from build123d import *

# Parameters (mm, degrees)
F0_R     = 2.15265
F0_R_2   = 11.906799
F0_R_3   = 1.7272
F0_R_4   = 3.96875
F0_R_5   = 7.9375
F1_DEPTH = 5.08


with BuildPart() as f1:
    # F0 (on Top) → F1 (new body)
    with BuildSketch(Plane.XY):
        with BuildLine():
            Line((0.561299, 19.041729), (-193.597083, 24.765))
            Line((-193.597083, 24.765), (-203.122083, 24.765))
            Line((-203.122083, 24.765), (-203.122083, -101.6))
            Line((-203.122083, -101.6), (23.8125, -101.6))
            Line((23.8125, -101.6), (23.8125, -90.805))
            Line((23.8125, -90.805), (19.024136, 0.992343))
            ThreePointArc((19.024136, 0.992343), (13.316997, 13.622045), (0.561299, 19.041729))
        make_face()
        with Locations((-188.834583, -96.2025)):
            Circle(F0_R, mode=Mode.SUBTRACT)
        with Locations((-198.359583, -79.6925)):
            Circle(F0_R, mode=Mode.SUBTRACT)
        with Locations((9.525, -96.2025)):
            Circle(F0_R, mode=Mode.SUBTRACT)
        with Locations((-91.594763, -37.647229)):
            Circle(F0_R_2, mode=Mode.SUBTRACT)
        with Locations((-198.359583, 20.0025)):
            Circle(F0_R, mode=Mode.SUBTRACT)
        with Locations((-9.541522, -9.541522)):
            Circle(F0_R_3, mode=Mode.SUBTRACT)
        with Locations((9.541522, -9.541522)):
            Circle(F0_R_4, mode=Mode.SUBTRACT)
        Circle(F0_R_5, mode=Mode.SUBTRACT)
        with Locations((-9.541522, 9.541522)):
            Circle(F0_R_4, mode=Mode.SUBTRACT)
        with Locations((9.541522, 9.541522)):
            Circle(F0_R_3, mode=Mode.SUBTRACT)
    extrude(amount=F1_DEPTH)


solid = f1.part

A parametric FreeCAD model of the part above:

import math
import FreeCAD as App
import Part
import Sketcher
from FreeCAD import Vector
Q = App.Units.Quantity

doc = App.newDocument("Part")
body = doc.addObject("PartDesign::Body", "Body")

sketch1 = body.newObject("Sketcher::SketchObject", "Sketch")
sketch1.AttachmentSupport = (doc.getObject("XY_Plane"), [""])
sketch1.MapMode = "FlatFace"
sketch1.addGeometry([
    Part.LineSegment(Vector(0.6, 19, 0), Vector(-193.6, 24.8, 0)),
    Part.LineSegment(Vector(-193.6, 24.8, 0), Vector(-203.1, 24.8, 0)),
    Part.LineSegment(Vector(-203.1, 24.8, 0), Vector(-203.1, -101.6, 0)),
    Part.LineSegment(Vector(-203.1, -101.6, 0), Vector(23.8, -101.6, 0)),
    Part.LineSegment(Vector(23.8, -101.6, 0), Vector(23.8, -90.8, 0)),
    Part.LineSegment(Vector(23.8, -90.8, 0), Vector(19, 1, 0)),
    Part.ArcOfCircle(Part.Circle(Vector(0, 0, 0), Vector(0, 0, 1), 19), math.radians(3), math.radians(88)),
    Part.Circle(Vector(-188.8, -96.2, 0), Vector(0, 0, 1), 2.2),
    Part.Circle(Vector(-198.4, -79.7, 0), Vector(0, 0, 1), 2.2),
    Part.Circle(Vector(9.5, -96.2, 0), Vector(0, 0, 1), 2.2),
    Part.Circle(Vector(-198.4, 20, 0), Vector(0, 0, 1), 2.2),
    Part.Circle(Vector(-91.6, -37.6, 0), Vector(0, 0, 1), 11.9),
    Part.Circle(Vector(-9.5, -9.5, 0), Vector(0, 0, 1), 1.7),
    Part.Circle(Vector(9.5, -9.5, 0), Vector(0, 0, 1), 4),
    Part.Circle(Vector(0, 0, 0), Vector(0, 0, 1), 7.9),
    Part.Circle(Vector(-9.5, 9.5, 0), Vector(0, 0, 1), 4),
    Part.Circle(Vector(9.5, 9.5, 0), Vector(0, 0, 1), 1.7),
], False)
sketch1.addConstraint([
    Sketcher.Constraint("Coincident", 0, 2, 1, 1),
    Sketcher.Constraint("Coincident", 1, 2, 2, 1),
    Sketcher.Constraint("Coincident", 2, 2, 3, 1),
    Sketcher.Constraint("Coincident", 3, 2, 4, 1),
    Sketcher.Constraint("Coincident", 4, 2, 5, 1),
    Sketcher.Constraint("Tangent", 5, 2, 6, 1),
    Sketcher.Constraint("Tangent", 6, 2, 0, 1),
    Sketcher.Constraint("Horizontal", 1),
    Sketcher.Constraint("Vertical", 2),
    Sketcher.Constraint("Horizontal", 3),
    Sketcher.Constraint("Vertical", 4),
    Sketcher.Constraint("Coincident", 6, 3, -1, 1),
    Sketcher.Constraint("Coincident", 14, 3, -1, 1),
    Sketcher.Constraint("Equal", 7, 8),
    Sketcher.Constraint("Equal", 8, 9),
    Sketcher.Constraint("Equal", 9, 10),
    Sketcher.Constraint("Equal", 13, 15),
    Sketcher.Constraint("Equal", 12, 16),
    Sketcher.Constraint("Symmetric", 13, 3, 15, 3, -1, 1),
    Sketcher.Constraint("Symmetric", 12, 3, 16, 3, -1, 1),
    Sketcher.Constraint("Symmetric", 12, 3, 13, 3, -2),
    Sketcher.Constraint("Horizontal", 7, 3, 9, 3),
    Sketcher.Constraint("Vertical", 8, 3, 10, 3),
    Sketcher.Constraint("Radius", 6, Q("0.7499999 in")),
    Sketcher.Constraint("Diameter", 12, Q("0.136 in")),
    Sketcher.Constraint("Diameter", 13, Q("0.3125 in")),
    Sketcher.Constraint("Diameter", 14, Q("0.625 in")),
    Sketcher.Constraint("DistanceY", 2, 2, -1, 1, Q("4 in")),
    Sketcher.Constraint("Diameter", 7, Q("0.1695 in")),
    Sketcher.Constraint("DistanceX", 1, 2, 1, 1, Q("0.375 in")),
    Sketcher.Constraint("DistanceY", 2, 2, 2, 1, Q("4.975 in")),
    Sketcher.Constraint("DistanceY", 4, 1, 4, 2, Q("0.425 in")),
    Sketcher.Constraint("DistanceY", 7, 3, 8, 3, Q("0.65 in")),
    Sketcher.Constraint("DistanceX", -1, 1, 9, 3, Q("0.375 in")),
    Sketcher.Constraint("DistanceX", -1, 1, 3, 2, Q("0.9375 in")),
    Sketcher.Constraint("DistanceX", 8, 3, 7, 3, Q("0.375 in")),
    Sketcher.Constraint("DistanceY", 8, 3, 10, 3, Q("3.925 in")),
    Sketcher.Constraint("DistanceX", 10, 3, 0, 2, Q("0.1875 in")),
    Sketcher.Constraint("DistanceY", 10, 3, 0, 2, Q("0.1875 in")),
    Sketcher.Constraint("Diameter", 11, 23.813598),
    Sketcher.Constraint("DistanceX", 3, 1, 3, 2, 226.934583),
    Sketcher.Constraint("DistanceY", 11, 3, -1, 1, 37.647229),
    Sketcher.Constraint("DistanceX", 7, 3, 11, 3, 97.23982),
    Sketcher.Constraint("DistanceX", 11, 3, 12, 3, 82.053241),
    Sketcher.Constraint("DistanceY", 9, 3, 12, 3, 86.660978),
])
pad1 = body.newObject("PartDesign::Pad", "Pad")
pad1.Profile = sketch1
pad1.Length = Q("0.2 in")

doc.recompute()
